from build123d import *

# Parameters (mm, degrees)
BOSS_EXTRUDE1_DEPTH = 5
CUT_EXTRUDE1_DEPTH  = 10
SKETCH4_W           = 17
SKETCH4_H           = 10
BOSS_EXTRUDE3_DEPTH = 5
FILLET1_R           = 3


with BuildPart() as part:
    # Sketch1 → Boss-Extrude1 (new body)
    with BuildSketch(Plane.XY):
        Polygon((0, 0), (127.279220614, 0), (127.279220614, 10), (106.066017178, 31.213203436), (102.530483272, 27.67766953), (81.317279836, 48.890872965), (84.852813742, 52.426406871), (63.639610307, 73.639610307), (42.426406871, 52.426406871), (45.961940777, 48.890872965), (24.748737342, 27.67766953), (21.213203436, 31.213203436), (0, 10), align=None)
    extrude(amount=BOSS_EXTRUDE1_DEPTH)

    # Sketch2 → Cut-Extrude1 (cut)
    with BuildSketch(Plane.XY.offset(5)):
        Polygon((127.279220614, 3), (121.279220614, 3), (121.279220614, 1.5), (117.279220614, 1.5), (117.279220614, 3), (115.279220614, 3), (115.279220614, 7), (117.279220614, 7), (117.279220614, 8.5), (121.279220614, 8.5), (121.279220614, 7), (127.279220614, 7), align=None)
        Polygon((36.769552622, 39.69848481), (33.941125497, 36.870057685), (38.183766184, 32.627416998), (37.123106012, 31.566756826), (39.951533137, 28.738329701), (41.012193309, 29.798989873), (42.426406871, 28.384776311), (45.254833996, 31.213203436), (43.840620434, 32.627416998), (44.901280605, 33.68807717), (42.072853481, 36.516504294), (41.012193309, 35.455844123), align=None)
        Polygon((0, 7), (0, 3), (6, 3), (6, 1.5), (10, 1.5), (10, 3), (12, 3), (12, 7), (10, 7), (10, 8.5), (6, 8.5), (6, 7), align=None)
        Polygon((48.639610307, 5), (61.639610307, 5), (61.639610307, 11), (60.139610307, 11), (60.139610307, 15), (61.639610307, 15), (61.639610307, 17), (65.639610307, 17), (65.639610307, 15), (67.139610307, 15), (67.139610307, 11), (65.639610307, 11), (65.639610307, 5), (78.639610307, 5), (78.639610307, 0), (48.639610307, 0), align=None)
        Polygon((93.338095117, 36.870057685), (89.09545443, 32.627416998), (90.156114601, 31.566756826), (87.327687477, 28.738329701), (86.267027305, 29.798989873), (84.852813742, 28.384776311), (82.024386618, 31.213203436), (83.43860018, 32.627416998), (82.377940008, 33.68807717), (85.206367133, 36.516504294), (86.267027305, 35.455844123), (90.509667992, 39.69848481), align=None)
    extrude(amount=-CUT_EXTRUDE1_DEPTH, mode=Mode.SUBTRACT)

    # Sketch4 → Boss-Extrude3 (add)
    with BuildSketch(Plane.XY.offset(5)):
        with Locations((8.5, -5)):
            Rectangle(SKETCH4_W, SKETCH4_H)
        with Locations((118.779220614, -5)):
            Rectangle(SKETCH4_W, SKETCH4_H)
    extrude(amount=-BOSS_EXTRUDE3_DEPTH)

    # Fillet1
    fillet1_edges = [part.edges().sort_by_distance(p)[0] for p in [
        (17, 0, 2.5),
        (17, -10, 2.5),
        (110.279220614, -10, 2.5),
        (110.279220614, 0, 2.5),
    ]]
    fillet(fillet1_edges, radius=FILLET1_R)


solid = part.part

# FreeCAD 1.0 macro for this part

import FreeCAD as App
import Part
import Sketcher
from FreeCAD import Vector
Q = App.Units.Quantity


def edges_at(feature, points):
    """Names of the edges that pass closest to the given points."""
    edges = feature.Shape.Edges
    near = lambda p: min(range(len(edges)), key=lambda i: edges[i].distToShape(Part.Vertex(*p))[0])
    return sorted({f"Edge{near(p) + 1}" for p in points})

doc = App.newDocument("Part")
body = doc.addObject("PartDesign::Body", "Body")

# Sketch on XY plane
sketch1 = doc.addObject("Sketcher::SketchObject", "Sketch")
body.addObject(sketch1)
sketch1.AttachmentSupport = (doc.XY_Plane, [""])
sketch1.MapMode = "FlatFace"
sketch1.addGeometry(Part.LineSegment(Vector(0, 0, 0), Vector(127, 0, 0)), False)
sketch1.addGeometry(Part.LineSegment(Vector(127, 0, 0), Vector(127, 10, 0)), False)
sketch1.addGeometry(Part.LineSegment(Vector(127, 10, 0), Vector(106, 31, 0)), False)
sketch1.addGeometry(Part.LineSegment(Vector(106, 31, 0), Vector(103, 28, 0)), False)
sketch1.addGeometry(Part.LineSegment(Vector(103, 28, 0), Vector(81, 49, 0)), False)
sketch1.addGeometry(Part.LineSegment(Vector(81, 49, 0), Vector(85, 52, 0)), False)
sketch1.addGeometry(Part.LineSegment(Vector(85, 52, 0), Vector(64, 74, 0)), False)
sketch1.addGeometry(Part.LineSegment(Vector(64, 74, 0), Vector(42, 52, 0)), False)
sketch1.addGeometry(Part.LineSegment(Vector(42, 52, 0), Vector(46, 49, 0)), False)
sketch1.addGeometry(Part.LineSegment(Vector(46, 49, 0), Vector(25, 28, 0)), False)
sketch1.addGeometry(Part.LineSegment(Vector(25, 28, 0), Vector(21, 31, 0)), False)
sketch1.addGeometry(Part.LineSegment(Vector(21, 31, 0), Vector(0, 10, 0)), False)
sketch1.addGeometry(Part.LineSegment(Vector(0, 10, 0), Vector(0, 0, 0)), False)
sketch1.addConstraint(Sketcher.Constraint("Coincident", 0, 2, 1, 1))
sketch1.addConstraint(Sketcher.Constraint("Coincident", 1, 2, 2, 1))
sketch1.addConstraint(Sketcher.Constraint("Coincident", 2, 2, 3, 1))
sketch1.addConstraint(Sketcher.Constraint("Coincident", 3, 2, 4, 1))
sketch1.addConstraint(Sketcher.Constraint("Coincident", 4, 2, 5, 1))
sketch1.addConstraint(Sketcher.Constraint("Coincident", 5, 2, 6, 1))
sketch1.addConstraint(Sketcher.Constraint("Coincident", 6, 2, 7, 1))
sketch1.addConstraint(Sketcher.Constraint("Coincident", 7, 2, 8, 1))
sketch1.addConstraint(Sketcher.Constraint("Coincident", 8, 2, 9, 1))
sketch1.addConstraint(Sketcher.Constraint("Coincident", 9, 2, 10, 1))
sketch1.addConstraint(Sketcher.Constraint("Coincident", 10, 2, 11, 1))
sketch1.addConstraint(Sketcher.Constraint("Coincident", 11, 2, 12, 1))
sketch1.addConstraint(Sketcher.Constraint("Coincident", 12, 2, 0, 1))
sketch1.addConstraint(Sketcher.Constraint("Horizontal", 0))
sketch1.addConstraint(Sketcher.Constraint("Vertical", 1))
sketch1.addConstraint(Sketcher.Constraint("Vertical", 12))
sketch1.addConstraint(Sketcher.Constraint("Coincident", 12, 2, -1, 1))
sketch1.addConstraint(Sketcher.Constraint("Perpendicular", 2, 3))
sketch1.addConstraint(Sketcher.Constraint("Perpendicular", 3, 4))
sketch1.addConstraint(Sketcher.Constraint("Perpendicular", 4, 5))
sketch1.addConstraint(Sketcher.Constraint("Perpendicular", 5, 6))
sketch1.addConstraint(Sketcher.Constraint("Perpendicular", 6, 7))
sketch1.addConstraint(Sketcher.Constraint("Perpendicular", 7, 8))
sketch1.addConstraint(Sketcher.Constraint("Perpendicular", 8, 9))
sketch1.addConstraint(Sketcher.Constraint("Perpendicular", 9, 10))
sketch1.addConstraint(Sketcher.Constraint("Perpendicular", 10, 11))
sketch1.addConstraint(Sketcher.Constraint("Horizontal", 5, 2, 7, 2))
sketch1.addConstraint(Sketcher.Constraint("Horizontal", 4, 2, 8, 2))
sketch1.addConstraint(Sketcher.Constraint("Horizontal", 3, 2, 9, 2))
sketch1.addConstraint(Sketcher.Constraint("Horizontal", 2, 2, 10, 2))
sketch1.addConstraint(Sketcher.Constraint("Horizontal", 1, 2, 11, 2))
sketch1.addConstraint(Sketcher.Constraint("Equal", 2, 4))
sketch1.addConstraint(Sketcher.Constraint("Equal", 3, 5))
sketch1.addConstraint(Sketcher.Constraint("Equal", 4, 6))
sketch1.addConstraint(Sketcher.Constraint("Equal", 6, 7))
sketch1.addConstraint(Sketcher.Constraint("DistanceY", 1, 1, 1, 2, Q("10 mm")))
sketch1.addConstraint(Sketcher.Constraint("Distance", 2, Q("30 mm")))
sketch1.addConstraint(Sketcher.Constraint("Distance", 3, Q("5 mm")))
pad1 = doc.addObject("PartDesign::Pad", "Pad")
body.addObject(pad1)
pad1.Profile = sketch1
pad1.Length = 5

# Sketch on XY plane
sketch2 = doc.addObject("Sketcher::SketchObject", "Sketch001")
body.addObject(sketch2)
sketch2.AttachmentSupport = (doc.XY_Plane, [""])
sketch2.MapMode = "FlatFace"
sketch2.AttachmentOffset = App.Placement(Vector(0, 0, 5), App.Rotation())
sketch2.addGeometry(Part.LineSegment(Vector(121.3, 3, 0), Vector(127.3, 3, 0)), False)
sketch2.addGeometry(Part.LineSegment(Vector(127.3, 3, 0), Vector(127.3, 7, 0)), False)
sketch2.addGeometry(Part.LineSegment(Vector(127.3, 7, 0), Vector(121.3, 7, 0)), False)
sketch2.addGeometry(Part.LineSegment(Vector(121.3, 7, 0), Vector(121.3, 8.5, 0)), False)
sketch2.addGeometry(Part.LineSegment(Vector(121.3, 8.5, 0), Vector(117.3, 8.5, 0)), False)
sketch2.addGeometry(Part.LineSegment(Vector(117.3, 8.5, 0), Vector(117.3, 7, 0)), False)
sketch2.addGeometry(Part.LineSegment(Vector(117.3, 7, 0), Vector(115.3, 7, 0)), False)
sketch2.addGeometry(Part.LineSegment(Vector(115.3, 7, 0), Vector(115.3, 3, 0)), False)
sketch2.addGeometry(Part.LineSegment(Vector(115.3, 3, 0), Vector(117.3, 3, 0)), False)
sketch2.addGeometry(Part.LineSegment(Vector(117.3, 3, 0), Vector(117.3, 1.5, 0)), False)
sketch2.addGeometry(Part.LineSegment(Vector(117.3, 1.5, 0), Vector(121.3, 1.5, 0)), False)
sketch2.addGeometry(Part.LineSegment(Vector(121.3, 1.5, 0), Vector(121.3, 3, 0)), False)
sketch2.addGeometry(Part.LineSegment(Vector(36.8, 39.7, 0), Vector(33.9, 36.9, 0)), False)
sketch2.addGeometry(Part.LineSegment(Vector(33.9, 36.9, 0), Vector(38.2, 32.6, 0)), False)
sketch2.addGeometry(Part.LineSegment(Vector(38.2, 32.6, 0), Vector(37.1, 31.6, 0)), False)
sketch2.addGeometry(Part.LineSegment(Vector(37.1, 31.6, 0), Vector(40, 28.7, 0)), False)
sketch2.addGeometry(Part.LineSegment(Vector(40, 28.7, 0), Vector(41, 29.8, 0)), False)
sketch2.addGeometry(Part.LineSegment(Vector(41, 29.8, 0), Vector(42.4, 28.4, 0)), False)
sketch2.addGeometry(Part.LineSegment(Vector(42.4, 28.4, 0), Vector(45.3, 31.2, 0)), False)
sketch2.addGeometry(Part.LineSegment(Vector(45.3, 31.2, 0), Vector(43.8, 32.6, 0)), False)
sketch2.addGeometry(Part.LineSegment(Vector(43.8, 32.6, 0), Vector(44.9, 33.7, 0)), False)
sketch2.addGeometry(Part.LineSegment(Vector(44.9, 33.7, 0), Vector(42.1, 36.5, 0)), False)
sketch2.addGeometry(Part.LineSegment(Vector(42.1, 36.5, 0), Vector(41, 35.5, 0)), False)
sketch2.addGeometry(Part.LineSegment(Vector(41, 35.5, 0), Vector(36.8, 39.7, 0)), False)
sketch2.addGeometry(Part.LineSegment(Vector(0, 7, 0), Vector(0, 3, 0)), False)
sketch2.addGeometry(Part.LineSegment(Vector(0, 3, 0), Vector(6, 3, 0)), False)
sketch2.addGeometry(Part.LineSegment(Vector(6, 3, 0), Vector(6, 1.5, 0)), False)
sketch2.addGeometry(Part.LineSegment(Vector(6, 1.5, 0), Vector(10, 1.5, 0)), False)
sketch2.addGeometry(Part.LineSegment(Vector(10, 1.5, 0), Vector(10, 3, 0)), False)
sketch2.addGeometry(Part.LineSegment(Vector(10, 3, 0), Vector(12, 3, 0)), False)
sketch2.addGeometry(Part.LineSegment(Vector(12, 3, 0), Vector(12, 7, 0)), False)
sketch2.addGeometry(Part.LineSegment(Vector(12, 7, 0), Vector(10, 7, 0)), False)
sketch2.addGeometry(Part.LineSegment(Vector(10, 7, 0), Vector(10, 8.5, 0)), False)
sketch2.addGeometry(Part.LineSegment(Vector(10, 8.5, 0), Vector(6, 8.5, 0)), False)
sketch2.addGeometry(Part.LineSegment(Vector(6, 8.5, 0), Vector(6, 7, 0)), False)
sketch2.addGeometry(Part.LineSegment(Vector(6, 7, 0), Vector(0, 7, 0)), False)
sketch2.addGeometry(Part.LineSegment(Vector(61.6, 5, 0), Vector(48.6, 5, 0)), False)
sketch2.addGeometry(Part.LineSegment(Vector(48.6, 5, 0), Vector(48.6, 0, 0)), False)
sketch2.addGeometry(Part.LineSegment(Vector(48.6, 0, 0), Vector(78.6, 0, 0)), False)
sketch2.addGeometry(Part.LineSegment(Vector(78.6, 0, 0), Vector(78.6, 5, 0)), False)
sketch2.addGeometry(Part.LineSegment(Vector(78.6, 5, 0), Vector(65.6, 5, 0)), False)
sketch2.addGeometry(Part.LineSegment(Vector(65.6, 5, 0), Vector(65.6, 11, 0)), False)
sketch2.addGeometry(Part.LineSegment(Vector(65.6, 11, 0), Vector(67.1, 11, 0)), False)
sketch2.addGeometry(Part.LineSegment(Vector(67.1, 11, 0), Vector(67.1, 15, 0)), False)
sketch2.addGeometry(Part.LineSegment(Vector(67.1, 15, 0), Vector(65.6, 15, 0)), False)
sketch2.addGeometry(Part.LineSegment(Vector(65.6, 15, 0), Vector(65.6, 17, 0)), False)
sketch2.addGeometry(Part.LineSegment(Vector(65.6, 17, 0), Vector(61.6, 17, 0)), False)
sketch2.addGeometry(Part.LineSegment(Vector(61.6, 17, 0), Vector(61.6, 15, 0)), False)
sketch2.addGeometry(Part.LineSegment(Vector(61.6, 15, 0), Vector(60.1, 15, 0)), False)
sketch2.addGeometry(Part.LineSegment(Vector(60.1, 15, 0), Vector(60.1, 11, 0)), False)
sketch2.addGeometry(Part.LineSegment(Vector(60.1, 11, 0), Vector(61.6, 11, 0)), False)
sketch2.addGeometry(Part.LineSegment(Vector(61.6, 11, 0), Vector(61.6, 5, 0)), False)
sketch2.addGeometry(Part.LineSegment(Vector(89.1, 32.6, 0), Vector(93.3, 36.9, 0)), False)
sketch2.addGeometry(Part.LineSegment(Vector(93.3, 36.9, 0), Vector(90.5, 39.7, 0)), False)
sketch2.addGeometry(Part.LineSegment(Vector(90.5, 39.7, 0), Vector(86.3, 35.5, 0)), False)
sketch2.addGeometry(Part.LineSegment(Vector(86.3, 35.5, 0), Vector(85.2, 36.5, 0)), False)
sketch2.addGeometry(Part.LineSegment(Vector(85.2, 36.5, 0), Vector(82.4, 33.7, 0)), False)
sketch2.addGeometry(Part.LineSegment(Vector(82.4, 33.7, 0), Vector(83.4, 32.6, 0)), False)
sketch2.addGeometry(Part.LineSegment(Vector(83.4, 32.6, 0), Vector(82, 31.2, 0)), False)
sketch2.addGeometry(Part.LineSegment(Vector(82, 31.2, 0), Vector(84.9, 28.4, 0)), False)
sketch2.addGeometry(Part.LineSegment(Vector(84.9, 28.4, 0), Vector(86.3, 29.8, 0)), False)
sketch2.addGeometry(Part.LineSegment(Vector(86.3, 29.8, 0), Vector(87.3, 28.7, 0)), False)
sketch2.addGeometry(Part.LineSegment(Vector(87.3, 28.7, 0), Vector(90.2, 31.6, 0)), False)
sketch2.addGeometry(Part.LineSegment(Vector(90.2, 31.6, 0), Vector(89.1, 32.6, 0)), False)
sketch2.addConstraint(Sketcher.Constraint("Coincident", 0, 2, 1, 1))
sketch2.addConstraint(Sketcher.Constraint("Coincident", 1, 2, 2, 1))
sketch2.addConstraint(Sketcher.Constraint("Coincident", 2, 2, 3, 1))
sketch2.addConstraint(Sketcher.Constraint("Coincident", 3, 2, 4, 1))
sketch2.addConstraint(Sketcher.Constraint("Coincident", 4, 2, 5, 1))
sketch2.addConstraint(Sketcher.Constraint("Coincident", 5, 2, 6, 1))
sketch2.addConstraint(Sketcher.Constraint("Coincident", 6, 2, 7, 1))
sketch2.addConstraint(Sketcher.Constraint("Coincident", 7, 2, 8, 1))
sketch2.addConstraint(Sketcher.Constraint("Coincident", 8, 2, 9, 1))
sketch2.addConstraint(Sketcher.Constraint("Coincident", 9, 2, 10, 1))
sketch2.addConstraint(Sketcher.Constraint("Coincident", 10, 2, 11, 1))
sketch2.addConstraint(Sketcher.Constraint("Coincident", 11, 2, 0, 1))
sketch2.addConstraint(Sketcher.Constraint("Coincident", 12, 2, 13, 1))
sketch2.addConstraint(Sketcher.Constraint("Coincident", 13, 2, 14, 1))
sketch2.addConstraint(Sketcher.Constraint("Coincident", 14, 2, 15, 1))
sketch2.addConstraint(Sketcher.Constraint("Coincident", 15, 2, 16, 1))
sketch2.addConstraint(Sketcher.Constraint("Coincident", 16, 2, 17, 1))
sketch2.addConstraint(Sketcher.Constraint("Coincident", 17, 2, 18, 1))
sketch2.addConstraint(Sketcher.Constraint("Coincident", 18, 2, 19, 1))
sketch2.addConstraint(Sketcher.Constraint("Coincident", 19, 2, 20, 1))
sketch2.addConstraint(Sketcher.Constraint("Coincident", 20, 2, 21, 1))
sketch2.addConstraint(Sketcher.Constraint("Coincident", 21, 2, 22, 1))
sketch2.addConstraint(Sketcher.Constraint("Coincident", 22, 2, 23, 1))
sketch2.addConstraint(Sketcher.Constraint("Coincident", 23, 2, 12, 1))
sketch2.addConstraint(Sketcher.Constraint("Coincident", 24, 2, 25, 1))
sketch2.addConstraint(Sketcher.Constraint("Coincident", 25, 2, 26, 1))
sketch2.addConstraint(Sketcher.Constraint("Coincident", 26, 2, 27, 1))
sketch2.addConstraint(Sketcher.Constraint("Coincident", 27, 2, 28, 1))
sketch2.addConstraint(Sketcher.Constraint("Coincident", 28, 2, 29, 1))
sketch2.addConstraint(Sketcher.Constraint("Coincident", 29, 2, 30, 1))
sketch2.addConstraint(Sketcher.Constraint("Coincident", 30, 2, 31, 1))
sketch2.addConstraint(Sketcher.Constraint("Coincident", 31, 2, 32, 1))
sketch2.addConstraint(Sketcher.Constraint("Coincident", 32, 2, 33, 1))
sketch2.addConstraint(Sketcher.Constraint("Coincident", 33, 2, 34, 1))
sketch2.addConstraint(Sketcher.Constraint("Coincident", 34, 2, 35, 1))
sketch2.addConstraint(Sketcher.Constraint("Coincident", 35, 2, 24, 1))
sketch2.addConstraint(Sketcher.Constraint("Coincident", 36, 2, 37, 1))
sketch2.addConstraint(Sketcher.Constraint("Coincident", 37, 2, 38, 1))
sketch2.addConstraint(Sketcher.Constraint("Coincident", 38, 2, 39, 1))
sketch2.addConstraint(Sketcher.Constraint("Coincident", 39, 2, 40, 1))
sketch2.addConstraint(Sketcher.Constraint("Coincident", 40, 2, 41, 1))
sketch2.addConstraint(Sketcher.Constraint("Coincident", 41, 2, 42, 1))
sketch2.addConstraint(Sketcher.Constraint("Coincident", 42, 2, 43, 1))
sketch2.addConstraint(Sketcher.Constraint("Coincident", 43, 2, 44, 1))
sketch2.addConstraint(Sketcher.Constraint("Coincident", 44, 2, 45, 1))
sketch2.addConstraint(Sketcher.Constraint("Coincident", 45, 2, 46, 1))
sketch2.addConstraint(Sketcher.Constraint("Coincident", 46, 2, 47, 1))
sketch2.addConstraint(Sketcher.Constraint("Coincident", 47, 2, 48, 1))
sketch2.addConstraint(Sketcher.Constraint("Coincident", 48, 2, 49, 1))
sketch2.addConstraint(Sketcher.Constraint("Coincident", 49, 2, 50, 1))
sketch2.addConstraint(Sketcher.Constraint("Coincident", 50, 2, 51, 1))
sketch2.addConstraint(Sketcher.Constraint("Coincident", 51, 2, 36, 1))
sketch2.addConstraint(Sketcher.Constraint("Coincident", 52, 2, 53, 1))
sketch2.addConstraint(Sketcher.Constraint("Coincident", 53, 2, 54, 1))
sketch2.addConstraint(Sketcher.Constraint("Coincident", 54, 2, 55, 1))
sketch2.addConstraint(Sketcher.Constraint("Coincident", 55, 2, 56, 1))
sketch2.addConstraint(Sketcher.Constraint("Coincident", 56, 2, 57, 1))
sketch2.addConstraint(Sketcher.Constraint("Coincident", 57, 2, 58, 1))
sketch2.addConstraint(Sketcher.Constraint("Coincident", 58, 2, 59, 1))
sketch2.addConstraint(Sketcher.Constraint("Coincident", 59, 2, 60, 1))
sketch2.addConstraint(Sketcher.Constraint("Coincident", 60, 2, 61, 1))
sketch2.addConstraint(Sketcher.Constraint("Coincident", 61, 2, 62, 1))
sketch2.addConstraint(Sketcher.Constraint("Coincident", 62, 2, 63, 1))
sketch2.addConstraint(Sketcher.Constraint("Coincident", 63, 2, 52, 1))
sketch2.addConstraint(Sketcher.Constraint("Horizontal", 0))
sketch2.addConstraint(Sketcher.Constraint("Vertical", 1))
sketch2.addConstraint(Sketcher.Constraint("Horizontal", 2))
sketch2.addConstraint(Sketcher.Constraint("Vertical", 3))
sketch2.addConstraint(Sketcher.Constraint("Horizontal", 4))
sketch2.addConstraint(Sketcher.Constraint("Vertical", 5))
sketch2.addConstraint(Sketcher.Constraint("Horizontal", 6))
sketch2.addConstraint(Sketcher.Constraint("Vertical", 7))
sketch2.addConstraint(Sketcher.Constraint("Horizontal", 8))
sketch2.addConstraint(Sketcher.Constraint("Vertical", 9))
sketch2.addConstraint(Sketcher.Constraint("Horizontal", 10))
sketch2.addConstraint(Sketcher.Constraint("Vertical", 11))
sketch2.addConstraint(Sketcher.Constraint("Vertical", 24))
sketch2.addConstraint(Sketcher.Constraint("Horizontal", 25))
sketch2.addConstraint(Sketcher.Constraint("Vertical", 26))
sketch2.addConstraint(Sketcher.Constraint("Horizontal", 27))
sketch2.addConstraint(Sketcher.Constraint("Vertical", 28))
sketch2.addConstraint(Sketcher.Constraint("Horizontal", 29))
sketch2.addConstraint(Sketcher.Constraint("Vertical", 30))
sketch2.addConstraint(Sketcher.Constraint("Horizontal", 31))
sketch2.addConstraint(Sketcher.Constraint("Vertical", 32))
sketch2.addConstraint(Sketcher.Constraint("Horizontal", 33))
sketch2.addConstraint(Sketcher.Constraint("Vertical", 34))
sketch2.addConstraint(Sketcher.Constraint("Horizontal", 35))
sketch2.addConstraint(Sketcher.Constraint("Horizontal", 36))
sketch2.addConstraint(Sketcher.Constraint("Vertical", 37))
sketch2.addConstraint(Sketcher.Constraint("Horizontal", 38))
sketch2.addConstraint(Sketcher.Constraint("Vertical", 39))
sketch2.addConstraint(Sketcher.Constraint("Horizontal", 40))
sketch2.addConstraint(Sketcher.Constraint("Vertical", 41))
sketch2.addConstraint(Sketcher.Constraint("Horizontal", 42))
sketch2.addConstraint(Sketcher.Constraint("Vertical", 43))
sketch2.addConstraint(Sketcher.Constraint("Horizontal", 44))
sketch2.addConstraint(Sketcher.Constraint("Vertical", 45))
sketch2.addConstraint(Sketcher.Constraint("Horizontal", 46))
sketch2.addConstraint(Sketcher.Constraint("Vertical", 47))
sketch2.addConstraint(Sketcher.Constraint("Horizontal", 48))
sketch2.addConstraint(Sketcher.Constraint("Vertical", 49))
sketch2.addConstraint(Sketcher.Constraint("Horizontal", 50))
sketch2.addConstraint(Sketcher.Constraint("Vertical", 51))
sketch2.addConstraint(Sketcher.Constraint("PointOnObject", 24, 2, -2))
sketch2.addConstraint(Sketcher.Constraint("PointOnObject", 37, 2, -1))
sketch2.addConstraint(Sketcher.Constraint("Perpendicular", 12, 13))
sketch2.addConstraint(Sketcher.Constraint("Perpendicular", 13, 14))
sketch2.addConstraint(Sketcher.Constraint("Perpendicular", 14, 15))
sketch2.addConstraint(Sketcher.Constraint("Perpendicular", 15, 16))
sketch2.addConstraint(Sketcher.Constraint("Perpendicular", 16, 17))
sketch2.addConstraint(Sketcher.Constraint("Perpendicular", 17, 18))
sketch2.addConstraint(Sketcher.Constraint("Perpendicular", 18, 19))
sketch2.addConstraint(Sketcher.Constraint("Perpendicular", 19, 20))
sketch2.addConstraint(Sketcher.Constraint("Perpendicular", 20, 21))
sketch2.addConstraint(Sketcher.Constraint("Perpendicular", 21, 22))
sketch2.addConstraint(Sketcher.Constraint("Perpendicular", 22, 23))
sketch2.addConstraint(Sketcher.Constraint("Perpendicular", 23, 52))
sketch2.addConstraint(Sketcher.Constraint("Perpendicular", 52, 53))
sketch2.addConstraint(Sketcher.Constraint("Perpendicular", 53, 54))
sketch2.addConstraint(Sketcher.Constraint("Perpendicular", 54, 55))
sketch2.addConstraint(Sketcher.Constraint("Perpendicular", 55, 56))
sketch2.addConstraint(Sketcher.Constraint("Perpendicular", 56, 57))
sketch2.addConstraint(Sketcher.Constraint("Perpendicular", 57, 58))
sketch2.addConstraint(Sketcher.Constraint("Perpendicular", 58, 59))
sketch2.addConstraint(Sketcher.Constraint("Perpendicular", 59, 60))
sketch2.addConstraint(Sketcher.Constraint("Perpendicular", 60, 61))
sketch2.addConstraint(Sketcher.Constraint("Perpendicular", 61, 62))
sketch2.addConstraint(Sketcher.Constraint("Perpendicular", 62, 63))
sketch2.addConstraint(Sketcher.Constraint("Horizontal", 2, 2, 5, 2))
sketch2.addConstraint(Sketcher.Constraint("Horizontal", 0, 2, 7, 2))
sketch2.addConstraint(Sketcher.Constraint("Horizontal", 13, 2, 19, 2))
sketch2.addConstraint(Sketcher.Constraint("Horizontal", 11, 2, 24, 2))
sketch2.addConstraint(Sketcher.Constraint("Horizontal", 10, 2, 26, 2))
sketch2.addConstraint(Sketcher.Constraint("Horizontal", 25, 2, 28, 2))
sketch2.addConstraint(Sketcher.Constraint("Horizontal", 6, 2, 30, 2))
sketch2.addConstraint(Sketcher.Constraint("Horizontal", 4, 2, 32, 2))
sketch2.addConstraint(Sketcher.Constraint("Horizontal", 31, 2, 34, 2))
sketch2.addConstraint(Sketcher.Constraint("Horizontal", 36, 2, 39, 2))
sketch2.addConstraint(Sketcher.Constraint("Horizontal", 44, 2, 47, 2))
sketch2.addConstraint(Sketcher.Constraint("Horizontal", 42, 2, 49, 2))
sketch2.addConstraint(Sketcher.Constraint("Horizontal", 12, 2, 52, 2))
sketch2.addConstraint(Sketcher.Constraint("Horizontal", 23, 2, 53, 2))
sketch2.addConstraint(Sketcher.Constraint("Horizontal", 22, 2, 54, 2))
sketch2.addConstraint(Sketcher.Constraint("Horizontal", 21, 2, 55, 2))
sketch2.addConstraint(Sketcher.Constraint("Horizontal", 20, 2, 56, 2))
sketch2.addConstraint(Sketcher.Constraint("Horizontal", 19, 2, 57, 2))
sketch2.addConstraint(Sketcher.Constraint("Horizontal", 18, 2, 58, 2))
sketch2.addConstraint(Sketcher.Constraint("Horizontal", 17, 2, 59, 2))
sketch2.addConstraint(Sketcher.Constraint("Horizontal", 16, 2, 60, 2))
sketch2.addConstraint(Sketcher.Constraint("Horizontal", 15, 2, 61, 2))
sketch2.addConstraint(Sketcher.Constraint("Horizontal", 14, 2, 62, 2))
sketch2.addConstraint(Sketcher.Constraint("Vertical", 5, 2, 8, 2))
sketch2.addConstraint(Sketcher.Constraint("Vertical", 3, 2, 10, 2))
sketch2.addConstraint(Sketcher.Constraint("Vertical", 16, 2, 22, 2))
sketch2.addConstraint(Sketcher.Constraint("Vertical", 28, 2, 31, 2))
sketch2.addConstraint(Sketcher.Constraint("Vertical", 26, 2, 33, 2))
sketch2.addConstraint(Sketcher.Constraint("Vertical", 41, 2, 44, 2))
sketch2.addConstraint(Sketcher.Constraint("Vertical", 47, 2, 50, 2))
sketch2.addConstraint(Sketcher.Constraint("Vertical", 54, 2, 60, 2))
sketch2.addConstraint(Sketcher.Constraint("Equal", 2, 25))
sketch2.addConstraint(Sketcher.Constraint("Equal", 10, 27))
sketch2.addConstraint(Sketcher.Constraint("Equal", 8, 29))
sketch2.addConstraint(Sketcher.Constraint("Equal", 36, 40))
sketch2.addConstraint(Sketcher.Constraint("Equal", 33, 46))
sketch2.addConstraint(Sketcher.Constraint("Equal", 44, 48))
sketch2.addConstraint(Sketcher.Constraint("Equal", 46, 1))
sketch2.addConstraint(Sketcher.Constraint("Equal", 50, 3))
sketch2.addConstraint(Sketcher.Constraint("Equal", 5, 9))
sketch2.addConstraint(Sketcher.Constraint("Equal", 35, 41))
sketch2.addConstraint(Sketcher.Constraint("Equal", 30, 43))
sketch2.addConstraint(Sketcher.Constraint("Equal", 31, 45))
sketch2.addConstraint(Sketcher.Constraint("Equal", 12, 15))
sketch2.addConstraint(Sketcher.Constraint("Equal", 14, 16))
sketch2.addConstraint(Sketcher.Constraint("Equal", 15, 18))
sketch2.addConstraint(Sketcher.Constraint("Equal", 16, 20))
sketch2.addConstraint(Sketcher.Constraint("DistanceX", 0, 1, 0, 2, Q("6 mm")))
sketch2.addConstraint(Sketcher.Constraint("DistanceX", 4, 2, 4, 1, Q("4 mm")))
sketch2.addConstraint(Sketcher.Constraint("DistanceX", 6, 2, 6, 1, Q("2 mm")))
sketch2.addConstraint(Sketcher.Constraint("DistanceX", 36, 2, 36, 1, Q("13 mm")))
sketch2.addConstraint(Sketcher.Constraint("DistanceY", 37, 2, 37, 1, Q("5 mm")))
sketch2.addConstraint(Sketcher.Constraint("Distance", 12, Q("4 mm")))
sketch2.addConstraint(Sketcher.Constraint("Distance", 13, Q("6 mm")))
sketch2.addConstraint(Sketcher.Constraint("Distance", 17, Q("2 mm")))
sketch2.addConstraint(Sketcher.Constraint("DistanceX", 42, 1, 42, 2, Q("1.5 mm")))
sketch2.addConstraint(Sketcher.Constraint("DistanceY", -1, 1, 0, 2, Q("3 mm")))
sketch2.addConstraint(Sketcher.Constraint("Distance", 14, Q("1.5 mm")))
sketch2.addConstraint(Sketcher.Constraint("DistanceX", -1, 1, 57, 2, Q("83.4386 mm")))
sketch2.addConstraint(Sketcher.Constraint("DistanceX", -1, 1, 0, 2, Q("127.279221 mm")))
sketch2.addConstraint(Sketcher.Constraint("DistanceY", -1, 1, 15, 2, Q("28.73833 mm")))
sketch2.addConstraint(Sketcher.Constraint("DistanceX", -1, 1, 19, 2, Q("43.84062 mm")))
sketch2.addConstraint(Sketcher.Constraint("DistanceX", -1, 1, 36, 2, Q("48.63961 mm")))
pocket1 = doc.addObject("PartDesign::Pocket", "Pocket")
body.addObject(pocket1)
pocket1.Profile = sketch2
pocket1.Length = 10

# Sketch on XY plane
sketch3 = doc.addObject("Sketcher::SketchObject", "Sketch002")
body.addObject(sketch3)
sketch3.AttachmentSupport = (doc.XY_Plane, [""])
sketch3.MapMode = "FlatFace"
sketch3.AttachmentOffset = App.Placement(Vector(0, 0, 5), App.Rotation())
sketch3.addGeometry(Part.LineSegment(Vector(0, 0, 0), Vector(0, -10, 0)), False)
sketch3.addGeometry(Part.LineSegment(Vector(0, -10, 0), Vector(17, -10, 0)), False)
sketch3.addGeometry(Part.LineSegment(Vector(17, -10, 0), Vector(17, 0, 0)), False)
sketch3.addGeometry(Part.LineSegment(Vector(17, 0, 0), Vector(0, 0, 0)), False)
sketch3.addGeometry(Part.LineSegment(Vector(110, 0, 0), Vector(110, -10, 0)), False)
sketch3.addGeometry(Part.LineSegment(Vector(110, -10, 0), Vector(127, -10, 0)), False)
sketch3.addGeometry(Part.LineSegment(Vector(127, -10, 0), Vector(127, 0, 0)), False)
sketch3.addGeometry(Part.LineSegment(Vector(127, 0, 0), Vector(110, 0, 0)), False)
sketch3.addConstraint(Sketcher.Constraint("Coincident", 0, 2, 1, 1))
sketch3.addConstraint(Sketcher.Constraint("Coincident", 1, 2, 2, 1))
sketch3.addConstraint(Sketcher.Constraint("Coincident", 2, 2, 3, 1))
sketch3.addConstraint(Sketcher.Constraint("Coincident", 3, 2, 0, 1))
sketch3.addConstraint(Sketcher.Constraint("Coincident", 4, 2, 5, 1))
sketch3.addConstraint(Sketcher.Constraint("Coincident", 5, 2, 6, 1))
sketch3.addConstraint(Sketcher.Constraint("Coincident", 6, 2, 7, 1))
sketch3.addConstraint(Sketcher.Constraint("Coincident", 7, 2, 4, 1))
sketch3.addConstraint(Sketcher.Constraint("Vertical", 0))
sketch3.addConstraint(Sketcher.Constraint("Horizontal", 1))
sketch3.addConstraint(Sketcher.Constraint("Vertical", 2))
sketch3.addConstraint(Sketcher.Constraint("Horizontal", 3))
sketch3.addConstraint(Sketcher.Constraint("Vertical", 4))
sketch3.addConstraint(Sketcher.Constraint("Horizontal", 5))
sketch3.addConstraint(Sketcher.Constraint("Vertical", 6))
sketch3.addConstraint(Sketcher.Constraint("Horizontal", 7))
sketch3.addConstraint(Sketcher.Constraint("Coincident", 3, 2, -1, 1))
sketch3.addConstraint(Sketcher.Constraint("PointOnObject", 6, 2, -1))
sketch3.addConstraint(Sketcher.Constraint("Horizontal", 1, 2, 4, 2))
sketch3.addConstraint(Sketcher.Constraint("Equal", 3, 5))
sketch3.addConstraint(Sketcher.Constraint("DistanceX", 1, 1, 1, 2, Q("17 mm")))
sketch3.addConstraint(Sketcher.Constraint("DistanceY", 0, 2, 0, 1, Q("10 mm")))
sketch3.addConstraint(Sketcher.Constraint("DistanceX", -1, 1, 4, 2, Q("110.279221 mm")))
pad2 = doc.addObject("PartDesign::Pad", "Pad001")
body.addObject(pad2)
pad2.Profile = sketch3
pad2.Length = 5
pad2.Reversed = True
doc.recompute()

fillet = doc.addObject("PartDesign::Fillet", "Fillet")
body.addObject(fillet)
fillet.Base = (pad2, edges_at(pad2, [
    (17, 0, 2.5),
    (17, -10, 2.5),
    (110.279, -10, 2.5),
    (110.279, 0, 2.5),
]))
fillet.Radius = 3

doc.recompute()
